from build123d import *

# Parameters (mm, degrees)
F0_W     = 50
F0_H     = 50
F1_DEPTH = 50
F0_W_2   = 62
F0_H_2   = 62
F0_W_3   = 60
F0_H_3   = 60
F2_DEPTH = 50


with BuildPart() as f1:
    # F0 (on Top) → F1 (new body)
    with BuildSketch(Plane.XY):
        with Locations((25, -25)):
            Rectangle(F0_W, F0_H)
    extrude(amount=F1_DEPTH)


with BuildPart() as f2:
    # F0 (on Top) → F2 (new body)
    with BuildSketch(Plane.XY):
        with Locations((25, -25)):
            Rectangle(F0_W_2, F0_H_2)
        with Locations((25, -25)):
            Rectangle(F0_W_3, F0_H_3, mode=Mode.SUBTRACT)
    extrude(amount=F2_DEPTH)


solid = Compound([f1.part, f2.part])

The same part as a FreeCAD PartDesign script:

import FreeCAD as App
import Part
import Sketcher

V = App.Vector
Q = App.Units.Quantity

doc = App.newDocument("Part")
body = doc.addObject("PartDesign::Body", "Body")

# Sketch on XY plane
sketch1 = body.newObject("Sketcher::SketchObject", "Sketch")
sketch1.AttachmentSupport = (doc.getObject("XY_Plane"), [""])
sketch1.MapMode = "FlatFace"
sketch1.addGeometry(Part.LineSegment(V(0, 0, 0), V(0, -50, 0)), False)
sketch1.addGeometry(Part.LineSegment(V(0, -50, 0), V(50, -50, 0)), False)
sketch1.addGeometry(Part.LineSegment(V(50, -50, 0), V(50, 0, 0)), False)
sketch1.addGeometry(Part.LineSegment(V(50, 0, 0), V(0, 0, 0)), False)
sketch1.addConstraint(Sketcher.Constraint("Coincident", 0, 2, 1, 1))
sketch1.addConstraint(Sketcher.Constraint("Coincident", 1, 2, 2, 1))
sketch1.addConstraint(Sketcher.Constraint("Coincident", 2, 2, 3, 1))
sketch1.addConstraint(Sketcher.Constraint("Coincident", 3, 2, 0, 1))
sketch1.addConstraint(Sketcher.Constraint("Vertical", 0))
sketch1.addConstraint(Sketcher.Constraint("Horizontal", 1))
sketch1.addConstraint(Sketcher.Constraint("Vertical", 2))
sketch1.addConstraint(Sketcher.Constraint("Horizontal", 3))
sketch1.addConstraint(Sketcher.Constraint("Coincident", 3, 2, -1, 1))
sketch1.addConstraint(Sketcher.Constraint("Equal", 3, 0))
sketch1.addConstraint(Sketcher.Constraint("DistanceX", 1, 1, 1, 2, Q("50 mm")))
pad1 = body.newObject("PartDesign::Pad", "Pad")
pad1.Profile = sketch1
pad1.Length = 50
body2 = doc.addObject("PartDesign::Body", "Body001")

# Sketch on XY plane
sketch2 = body2.newObject("Sketcher::SketchObject", "Sketch001")
sketch2.AttachmentSupport = (doc.getObject("XY_Plane001"), [""])
sketch2.MapMode = "FlatFace"
sketch2.addGeometry(Part.LineSegment(V(-6, 6, 0), V(-6, -56, 0)), False)
sketch2.addGeometry(Part.LineSegment(V(-6, -56, 0), V(56, -56, 0)), False)
sketch2.addGeometry(Part.LineSegment(V(56, -56, 0), V(56, 6, 0)), False)
sketch2.addGeometry(Part.LineSegment(V(56, 6, 0), V(-6, 6, 0)), False)
sketch2.addGeometry(Part.LineSegment(V(55, -55, 0), V(-5, -55, 0)), False)
sketch2.addGeometry(Part.LineSegment(V(-5, -55, 0), V(-5, 5, 0)), False)
sketch2.addGeometry(Part.LineSegment(V(-5, 5, 0), V(55, 5, 0)), False)
sketch2.addGeometry(Part.LineSegment(V(55, 5, 0), V(55, -55, 0)), False)
sketch2.addConstraint(Sketcher.Constraint("Coincident", 0, 2, 1, 1))
sketch2.addConstraint(Sketcher.Constraint("Coincident", 1, 2, 2, 1))
sketch2.addConstraint(Sketcher.Constraint("Coincident", 2, 2, 3, 1))
sketch2.addConstraint(Sketcher.Constraint("Coincident", 3, 2, 0, 1))
sketch2.addConstraint(Sketcher.Constraint("Coincident", 4, 2, 5, 1))
sketch2.addConstraint(Sketcher.Constraint("Coincident", 5, 2, 6, 1))
sketch2.addConstraint(Sketcher.Constraint("Coincident", 6, 2, 7, 1))
sketch2.addConstraint(Sketcher.Constraint("Coincident", 7, 2, 4, 1))
sketch2.addConstraint(Sketcher.Constraint("Vertical", 0))
sketch2.addConstraint(Sketcher.Constraint("Horizontal", 1))
sketch2.addConstraint(Sketcher.Constraint("Vertical", 2))
sketch2.addConstraint(Sketcher.Constraint("Horizontal", 3))
sketch2.addConstraint(Sketcher.Constraint("Horizontal", 4))
sketch2.addConstraint(Sketcher.Constraint("Vertical", 5))
sketch2.addConstraint(Sketcher.Constraint("Horizontal", 6))
sketch2.addConstraint(Sketcher.Constraint("Vertical", 7))
sketch2.addConstraint(Sketcher.Constraint("Equal", 3, 0))
sketch2.addConstraint(Sketcher.Constraint("Equal", 6, 5))
sketch2.addConstraint(Sketcher.Constraint("DistanceX", 1, 1, 1, 2, Q("62 mm")))
sketch2.addConstraint(Sketcher.Constraint("DistanceX", 4, 2, 4, 1, Q("60 mm")))
sketch2.addConstraint(Sketcher.Constraint("DistanceX", 0, 2, -1, 1, Q("6 mm")))
sketch2.addConstraint(Sketcher.Constraint("DistanceY", 0, 2, -1, 1, Q("56 mm")))
sketch2.addConstraint(Sketcher.Constraint("DistanceX", 4, 2, -1, 1, Q("5 mm")))
sketch2.addConstraint(Sketcher.Constraint("DistanceY", 4, 2, -1, 1, Q("55 mm")))
pad2 = body2.newObject("PartDesign::Pad", "Pad001")
pad2.Profile = sketch2
pad2.Length = 50

doc.recompute()
